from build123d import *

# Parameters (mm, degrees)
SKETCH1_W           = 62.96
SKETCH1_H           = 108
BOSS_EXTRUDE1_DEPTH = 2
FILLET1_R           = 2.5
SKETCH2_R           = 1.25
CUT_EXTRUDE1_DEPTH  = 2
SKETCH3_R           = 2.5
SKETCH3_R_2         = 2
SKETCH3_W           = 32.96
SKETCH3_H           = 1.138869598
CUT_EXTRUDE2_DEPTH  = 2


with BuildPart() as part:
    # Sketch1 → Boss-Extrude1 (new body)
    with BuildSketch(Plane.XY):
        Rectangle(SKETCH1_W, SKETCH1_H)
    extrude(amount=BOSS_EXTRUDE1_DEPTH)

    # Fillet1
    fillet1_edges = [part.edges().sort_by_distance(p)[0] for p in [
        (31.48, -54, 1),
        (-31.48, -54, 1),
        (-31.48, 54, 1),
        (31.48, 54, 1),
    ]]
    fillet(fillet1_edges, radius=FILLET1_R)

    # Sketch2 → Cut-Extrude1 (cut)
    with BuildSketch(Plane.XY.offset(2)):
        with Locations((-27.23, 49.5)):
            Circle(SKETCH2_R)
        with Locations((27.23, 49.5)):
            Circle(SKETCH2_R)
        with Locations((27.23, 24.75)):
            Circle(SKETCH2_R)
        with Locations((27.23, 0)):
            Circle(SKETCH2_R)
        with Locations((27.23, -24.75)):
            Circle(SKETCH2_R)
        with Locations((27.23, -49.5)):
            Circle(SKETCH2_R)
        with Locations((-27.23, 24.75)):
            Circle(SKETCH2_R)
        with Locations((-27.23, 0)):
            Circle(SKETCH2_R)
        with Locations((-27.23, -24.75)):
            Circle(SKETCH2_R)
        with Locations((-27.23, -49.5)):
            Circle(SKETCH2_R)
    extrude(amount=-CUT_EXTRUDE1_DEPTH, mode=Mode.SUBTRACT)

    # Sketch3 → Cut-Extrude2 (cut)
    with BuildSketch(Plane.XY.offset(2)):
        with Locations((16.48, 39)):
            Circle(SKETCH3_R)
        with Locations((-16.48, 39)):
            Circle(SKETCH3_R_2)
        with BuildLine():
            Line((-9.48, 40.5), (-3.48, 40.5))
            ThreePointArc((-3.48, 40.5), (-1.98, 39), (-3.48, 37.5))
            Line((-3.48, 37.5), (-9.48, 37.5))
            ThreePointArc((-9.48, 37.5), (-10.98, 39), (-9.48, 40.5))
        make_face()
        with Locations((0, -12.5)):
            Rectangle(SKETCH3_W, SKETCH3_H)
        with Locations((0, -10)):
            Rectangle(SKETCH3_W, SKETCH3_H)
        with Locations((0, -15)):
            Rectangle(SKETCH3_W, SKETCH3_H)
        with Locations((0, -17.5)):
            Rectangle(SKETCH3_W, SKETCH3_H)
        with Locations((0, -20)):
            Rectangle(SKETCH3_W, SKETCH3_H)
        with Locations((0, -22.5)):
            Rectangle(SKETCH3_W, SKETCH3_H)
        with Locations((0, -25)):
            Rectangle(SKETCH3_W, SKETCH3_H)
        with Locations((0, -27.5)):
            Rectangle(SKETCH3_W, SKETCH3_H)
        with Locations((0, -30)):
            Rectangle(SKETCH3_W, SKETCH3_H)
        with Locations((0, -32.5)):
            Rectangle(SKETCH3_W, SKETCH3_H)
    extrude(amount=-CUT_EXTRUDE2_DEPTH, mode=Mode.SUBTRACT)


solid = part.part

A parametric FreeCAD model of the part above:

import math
import FreeCAD as App
import Part
import Sketcher

V = App.Vector


def edges_at(feature, points):
    """Names of the edges that pass closest to the given points."""
    edges = feature.Shape.Edges
    near = lambda p: min(range(len(edges)), key=lambda i: edges[i].distToShape(Part.Vertex(*p))[0])
    return sorted({f"Edge{near(p) + 1}" for p in points})


def add_polygon(sketch, points):
    """Adds a closed chain of lines whose ends are joined by coincident constraints."""
    first, n = sketch.GeometryCount, len(points)
    for a, b in zip(points, points[1:] + points[:1]):
        sketch.addGeometry(Part.LineSegment(App.Vector(*a, 0), App.Vector(*b, 0)), False)
    for i in range(n):
        sketch.addConstraint(Sketcher.Constraint("Coincident", first + i, 2, first + (i + 1) % n, 1))

doc = App.newDocument("Part")
params = doc.addObject("Spreadsheet::Sheet", "Params")
for row, (alias, value) in enumerate([
    ("sketch1_height", "108 mm"),
    ("sketch1_width", "62.96 mm"),
    ("pad1_length", "2 mm"),
    ("fillet_radius", "2.5 mm"),
    ("sketch2_diameter", "2.5 mm"),
    ("pocket1_length", "2 mm"),
    ("sketch3_diameter", "5 mm"),
    ("sketch3_diameter2", "4 mm"),
    ("sketch3_radius", "1.5 mm"),
    ("sketch3_width", "6 mm"),
    ("sketch3_width2", "32.96 mm"),
    ("pocket2_length", "2 mm"),
], start=1):
    params.set(f"A{row}", alias)
    params.set(f"B{row}", "=" + value)
    params.setAlias(f"B{row}", alias)

body = doc.addObject("PartDesign::Body", "Body")

# Sketch on XY plane
sketch1 = body.newObject("Sketcher::SketchObject", "Sketch")
sketch1.AttachmentSupport = (doc.getObject("XY_Plane"), [""])
sketch1.MapMode = "FlatFace"
add_polygon(sketch1, [(-31.48, 54), (-31.48, -54), (31.48, -54), (31.48, 54)])  # lines 0-3
sketch1.addConstraint(Sketcher.Constraint("Vertical", 0))
sketch1.addConstraint(Sketcher.Constraint("Horizontal", 1))
sketch1.addConstraint(Sketcher.Constraint("Vertical", 2))
sketch1.addConstraint(Sketcher.Constraint("Horizontal", 3))
sketch1.addConstraint(Sketcher.Constraint("Symmetric", 0, 2, 2, 2, -1, 1))
sketch1.addConstraint(Sketcher.Constraint("DistanceY", 0, 2, 0, 1, 108.0))
sketch1.addConstraint(Sketcher.Constraint("DistanceX", 1, 1, 1, 2, 62.96))
sketch1.setExpression("Constraints[9]", "Params.sketch1_height")
sketch1.setExpression("Constraints[10]", "Params.sketch1_width")
pad1 = body.newObject("PartDesign::Pad", "Pad")
pad1.Profile = sketch1
pad1.setExpression("Length", "Params.pad1_length")
doc.recompute()

fillet = body.newObject("PartDesign::Fillet", "Fillet")
fillet.Base = (pad1, edges_at(pad1, [
    (31.48, -54, 1),
    (-31.48, -54, 1),
    (-31.48, 54, 1),
    (31.48, 54, 1),
]))
fillet.setExpression("Radius", "Params.fillet_radius")

# Sketch on XY plane
sketch2 = body.newObject("Sketcher::SketchObject", "Sketch001")
sketch2.AttachmentSupport = (doc.getObject("XY_Plane"), [""])
sketch2.MapMode = "FlatFace"
sketch2.AttachmentOffset = App.Placement(V(0, 0, 2), App.Rotation())
sketch2.addGeometry(Part.Circle(V(-27.23, 49.5, 0), V(0, 0, 1), 1.25), False)
sketch2.addGeometry(Part.Circle(V(27.23, 49.5, 0), V(0, 0, 1), 1.25), False)
sketch2.addGeometry(Part.Circle(V(27.23, 24.75, 0), V(0, 0, 1), 1.25), False)
sketch2.addGeometry(Part.Circle(V(27.23, 0, 0), V(0, 0, 1), 1.25), False)
sketch2.addGeometry(Part.Circle(V(27.23, -24.75, 0), V(0, 0, 1), 1.25), False)
sketch2.addGeometry(Part.Circle(V(27.23, -49.5, 0), V(0, 0, 1), 1.25), False)
sketch2.addGeometry(Part.Circle(V(-27.23, 24.75, 0), V(0, 0, 1), 1.25), False)
sketch2.addGeometry(Part.Circle(V(-27.23, 0, 0), V(0, 0, 1), 1.25), False)
sketch2.addGeometry(Part.Circle(V(-27.23, -24.75, 0), V(0, 0, 1), 1.25), False)
sketch2.addGeometry(Part.Circle(V(-27.23, -49.5, 0), V(0, 0, 1), 1.25), False)
sketch2.addConstraint(Sketcher.Constraint("Equal", 0, 1))
sketch2.addConstraint(Sketcher.Constraint("Equal", 1, 2))
sketch2.addConstraint(Sketcher.Constraint("Equal", 2, 3))
sketch2.addConstraint(Sketcher.Constraint("Equal", 3, 4))
sketch2.addConstraint(Sketcher.Constraint("Equal", 4, 5))
sketch2.addConstraint(Sketcher.Constraint("Equal", 5, 6))
sketch2.addConstraint(Sketcher.Constraint("Equal", 6, 7))
sketch2.addConstraint(Sketcher.Constraint("Equal", 7, 8))
sketch2.addConstraint(Sketcher.Constraint("Equal", 8, 9))
sketch2.addConstraint(Sketcher.Constraint("Symmetric", 0, 3, 5, 3, -1, 1))
sketch2.addConstraint(Sketcher.Constraint("Symmetric", 4, 3, 6, 3, -1, 1))
sketch2.addConstraint(Sketcher.Constraint("Symmetric", 3, 3, 7, 3, -1, 1))
sketch2.addConstraint(Sketcher.Constraint("Symmetric", 2, 3, 8, 3, -1, 1))
sketch2.addConstraint(Sketcher.Constraint("Symmetric", 1, 3, 9, 3, -1, 1))
sketch2.addConstraint(Sketcher.Constraint("Symmetric", 0, 3, 1, 3, -2))
sketch2.addConstraint(Sketcher.Constraint("Symmetric", 2, 3, 6, 3, -2))
sketch2.addConstraint(Sketcher.Constraint("PointOnObject", 3, 3, -1))
sketch2.addConstraint(Sketcher.Constraint("Vertical", 1, 3, 2, 3))
sketch2.addConstraint(Sketcher.Constraint("Vertical", 2, 3, 3, 3))
sketch2.addConstraint(Sketcher.Constraint("Diameter", 0, 2.5))
sketch2.addConstraint(Sketcher.Constraint("DistanceY", 5, 3, 1, 3, 99.0))
sketch2.addConstraint(Sketcher.Constraint("DistanceY", 4, 3, 2, 3, 49.5))
sketch2.addConstraint(Sketcher.Constraint("DistanceX", 0, 3, -1, 1, 27.23))
sketch2.setExpression("Constraints[19]", "Params.sketch2_diameter")
pocket1 = body.newObject("PartDesign::Pocket", "Pocket")
pocket1.Profile = sketch2
pocket1.setExpression("Length", "Params.pocket1_length")

# Sketch on XY plane
sketch3 = body.newObject("Sketcher::SketchObject", "Sketch002")
sketch3.AttachmentSupport = (doc.getObject("XY_Plane"), [""])
sketch3.MapMode = "FlatFace"
sketch3.AttachmentOffset = App.Placement(V(0, 0, 2), App.Rotation())
sketch3.addGeometry(Part.Circle(V(16.48, 39, 0), V(0, 0, 1), 2.5), False)  # 0
sketch3.addGeometry(Part.Circle(V(-16.48, 39, 0), V(0, 0, 1), 2), False)  # 1
sketch3.addGeometry(Part.LineSegment(V(-3.48, 40.5, 0), V(-9.48, 40.5, 0)), False)  # 2
sketch3.addGeometry(Part.ArcOfCircle(Part.Circle(V(-9.48, 39, 0), V(0, 0, 1), 1.5), math.radians(90), math.radians(270)), False)  # 3
sketch3.addGeometry(Part.LineSegment(V(-9.48, 37.5, 0), V(-3.48, 37.5, 0)), False)  # 4
sketch3.addGeometry(Part.ArcOfCircle(Part.Circle(V(-3.48, 39, 0), V(0, 0, 1), 1.5), math.radians(-90), math.radians(90)), False)  # 5
add_polygon(sketch3, [(-16.48, -11.930565), (-16.48, -13.069435), (16.48, -13.069435), (16.48, -11.930565)])  # lines 6-9
add_polygon(sketch3, [(-16.48, -9.430565), (-16.48, -10.569435), (16.48, -10.569435), (16.48, -9.430565)])  # lines 10-13
add_polygon(sketch3, [(-16.48, -14.430565), (-16.48, -15.569435), (16.48, -15.569435), (16.48, -14.430565)])  # lines 14-17
add_polygon(sketch3, [(-16.48, -16.930565), (-16.48, -18.069435), (16.48, -18.069435), (16.48, -16.930565)])  # lines 18-21
add_polygon(sketch3, [(-16.48, -19.430565), (-16.48, -20.569435), (16.48, -20.569435), (16.48, -19.430565)])  # lines 22-25
add_polygon(sketch3, [(-16.48, -21.930565), (-16.48, -23.069435), (16.48, -23.069435), (16.48, -21.930565)])  # lines 26-29
add_polygon(sketch3, [(-16.48, -24.430565), (-16.48, -25.569435), (16.48, -25.569435), (16.48, -24.430565)])  # lines 30-33
add_polygon(sketch3, [(-16.48, -26.930565), (-16.48, -28.069435), (16.48, -28.069435), (16.48, -26.930565)])  # lines 34-37
add_polygon(sketch3, [(-16.48, -29.430565), (-16.48, -30.569435), (16.48, -30.569435), (16.48, -29.430565)])  # lines 38-41
add_polygon(sketch3, [(-16.48, -31.930565), (-16.48, -33.069435), (16.48, -33.069435), (16.48, -31.930565)])  # lines 42-45
sketch3.addConstraint(Sketcher.Constraint("Tangent", 2, 2, 3, 1))
sketch3.addConstraint(Sketcher.Constraint("Tangent", 3, 2, 4, 1))
sketch3.addConstraint(Sketcher.Constraint("Tangent", 4, 2, 5, 1))
sketch3.addConstraint(Sketcher.Constraint("Tangent", 5, 2, 2, 1))
sketch3.addConstraint(Sketcher.Constraint("Horizontal", 2))
sketch3.addConstraint(Sketcher.Constraint("Horizontal", 4))
sketch3.addConstraint(Sketcher.Constraint("Vertical", 6))
sketch3.addConstraint(Sketcher.Constraint("Horizontal", 7))
sketch3.addConstraint(Sketcher.Constraint("Vertical", 8))
sketch3.addConstraint(Sketcher.Constraint("Horizontal", 9))
sketch3.addConstraint(Sketcher.Constraint("Vertical", 10))
sketch3.addConstraint(Sketcher.Constraint("Horizontal", 11))
sketch3.addConstraint(Sketcher.Constraint("Vertical", 12))
sketch3.addConstraint(Sketcher.Constraint("Horizontal", 13))
sketch3.addConstraint(Sketcher.Constraint("Vertical", 14))
sketch3.addConstraint(Sketcher.Constraint("Horizontal", 15))
sketch3.addConstraint(Sketcher.Constraint("Vertical", 16))
sketch3.addConstraint(Sketcher.Constraint("Horizontal", 17))
sketch3.addConstraint(Sketcher.Constraint("Vertical", 18))
sketch3.addConstraint(Sketcher.Constraint("Horizontal", 19))
sketch3.addConstraint(Sketcher.Constraint("Vertical", 20))
sketch3.addConstraint(Sketcher.Constraint("Horizontal", 21))
sketch3.addConstraint(Sketcher.Constraint("Vertical", 22))
sketch3.addConstraint(Sketcher.Constraint("Horizontal", 23))
sketch3.addConstraint(Sketcher.Constraint("Vertical", 24))
sketch3.addConstraint(Sketcher.Constraint("Horizontal", 25))
sketch3.addConstraint(Sketcher.Constraint("Vertical", 26))
sketch3.addConstraint(Sketcher.Constraint("Horizontal", 27))
sketch3.addConstraint(Sketcher.Constraint("Vertical", 28))
sketch3.addConstraint(Sketcher.Constraint("Horizontal", 29))
sketch3.addConstraint(Sketcher.Constraint("Vertical", 30))
sketch3.addConstraint(Sketcher.Constraint("Horizontal", 31))
sketch3.addConstraint(Sketcher.Constraint("Vertical", 32))
sketch3.addConstraint(Sketcher.Constraint("Horizontal", 33))
sketch3.addConstraint(Sketcher.Constraint("Vertical", 34))
sketch3.addConstraint(Sketcher.Constraint("Horizontal", 35))
sketch3.addConstraint(Sketcher.Constraint("Vertical", 36))
sketch3.addConstraint(Sketcher.Constraint("Horizontal", 37))
sketch3.addConstraint(Sketcher.Constraint("Vertical", 38))
sketch3.addConstraint(Sketcher.Constraint("Horizontal", 39))
sketch3.addConstraint(Sketcher.Constraint("Vertical", 40))
sketch3.addConstraint(Sketcher.Constraint("Horizontal", 41))
sketch3.addConstraint(Sketcher.Constraint("Vertical", 42))
sketch3.addConstraint(Sketcher.Constraint("Horizontal", 43))
sketch3.addConstraint(Sketcher.Constraint("Vertical", 44))
sketch3.addConstraint(Sketcher.Constraint("Horizontal", 45))
sketch3.addConstraint(Sketcher.Constraint("Symmetric", 0, 3, 1, 3, -2))
sketch3.addConstraint(Sketcher.Constraint("Horizontal", 1, 3, 3, 3))
sketch3.addConstraint(Sketcher.Constraint("Vertical", 1, 3, 6, 2))
sketch3.addConstraint(Sketcher.Constraint("Vertical", 0, 3, 7, 2))
sketch3.addConstraint(Sketcher.Constraint("Vertical", 9, 2, 10, 2))
sketch3.addConstraint(Sketcher.Constraint("Vertical", 8, 2, 11, 2))
sketch3.addConstraint(Sketcher.Constraint("Vertical", 13, 2, 14, 2))
sketch3.addConstraint(Sketcher.Constraint("Vertical", 12, 2, 15, 2))
sketch3.addConstraint(Sketcher.Constraint("Vertical", 17, 2, 18, 2))
sketch3.addConstraint(Sketcher.Constraint("Vertical", 16, 2, 19, 2))
sketch3.addConstraint(Sketcher.Constraint("Vertical", 21, 2, 22, 2))
sketch3.addConstraint(Sketcher.Constraint("Vertical", 20, 2, 23, 2))
sketch3.addConstraint(Sketcher.Constraint("Vertical", 25, 2, 26, 2))
sketch3.addConstraint(Sketcher.Constraint("Vertical", 24, 2, 27, 2))
sketch3.addConstraint(Sketcher.Constraint("Vertical", 29, 2, 30, 2))
sketch3.addConstraint(Sketcher.Constraint("Vertical", 28, 2, 31, 2))
sketch3.addConstraint(Sketcher.Constraint("Vertical", 33, 2, 34, 2))
sketch3.addConstraint(Sketcher.Constraint("Vertical", 32, 2, 35, 2))
sketch3.addConstraint(Sketcher.Constraint("Vertical", 37, 2, 38, 2))
sketch3.addConstraint(Sketcher.Constraint("Vertical", 36, 2, 39, 2))
sketch3.addConstraint(Sketcher.Constraint("Vertical", 41, 2, 42, 2))
sketch3.addConstraint(Sketcher.Constraint("Vertical", 40, 2, 43, 2))
sketch3.addConstraint(Sketcher.Constraint("Equal", 8, 10))
sketch3.addConstraint(Sketcher.Constraint("Equal", 12, 14))
sketch3.addConstraint(Sketcher.Constraint("Equal", 16, 18))
sketch3.addConstraint(Sketcher.Constraint("Equal", 20, 22))
sketch3.addConstraint(Sketcher.Constraint("Equal", 24, 26))
sketch3.addConstraint(Sketcher.Constraint("Equal", 28, 30))
sketch3.addConstraint(Sketcher.Constraint("Equal", 32, 34))
sketch3.addConstraint(Sketcher.Constraint("Equal", 36, 38))
sketch3.addConstraint(Sketcher.Constraint("Equal", 40, 42))
sketch3.addConstraint(Sketcher.Constraint("Diameter", 0, 5.0))
sketch3.addConstraint(Sketcher.Constraint("Diameter", 1, 4.0))
sketch3.addConstraint(Sketcher.Constraint("Radius", 3, 1.5))
sketch3.addConstraint(Sketcher.Constraint("DistanceX", 2, 2, 2, 1, 6.0))
sketch3.addConstraint(Sketcher.Constraint("DistanceY", -1, 1, 0, 3, 39.0))
sketch3.addConstraint(Sketcher.Constraint("DistanceX", 1, 3, 3, 3, 7.0))
sketch3.addConstraint(Sketcher.Constraint("DistanceY", 14, 2, 10, 2, 5.0))
sketch3.addConstraint(Sketcher.Constraint("DistanceY", 18, 2, 6, 2, 5.0))
sketch3.addConstraint(Sketcher.Constraint("DistanceY", 22, 2, 14, 2, 5.0))
sketch3.addConstraint(Sketcher.Constraint("DistanceY", 26, 2, 18, 2, 5.0))
sketch3.addConstraint(Sketcher.Constraint("DistanceY", 30, 2, 22, 2, 5.0))
sketch3.addConstraint(Sketcher.Constraint("DistanceY", 34, 2, 26, 2, 5.0))
sketch3.addConstraint(Sketcher.Constraint("DistanceY", 38, 2, 30, 2, 5.0))
sketch3.addConstraint(Sketcher.Constraint("DistanceY", 42, 2, 34, 2, 5.0))
sketch3.addConstraint(Sketcher.Constraint("DistanceX", 7, 1, 7, 2, 32.96))
sketch3.addConstraint(Sketcher.Constraint("DistanceY", 6, 2, 10, 2, 2.5))
sketch3.addConstraint(Sketcher.Constraint("DistanceY", 6, 2, 6, 1, 1.13887))
sketch3.addConstraint(Sketcher.Constraint("DistanceY", 6, 2, -1, 1, 13.069435))
sketch3.setExpression("Constraints[117]", "Params.sketch3_diameter")
sketch3.setExpression("Constraints[118]", "Params.sketch3_diameter2")
sketch3.setExpression("Constraints[119]", "Params.sketch3_radius")
sketch3.setExpression("Constraints[120]", "Params.sketch3_width")
sketch3.setExpression("Constraints[131]", "Params.sketch3_width2")
pocket2 = body.newObject("PartDesign::Pocket", "Pocket001")
pocket2.Profile = sketch3
pocket2.setExpression("Length", "Params.pocket2_length")

doc.recompute()
